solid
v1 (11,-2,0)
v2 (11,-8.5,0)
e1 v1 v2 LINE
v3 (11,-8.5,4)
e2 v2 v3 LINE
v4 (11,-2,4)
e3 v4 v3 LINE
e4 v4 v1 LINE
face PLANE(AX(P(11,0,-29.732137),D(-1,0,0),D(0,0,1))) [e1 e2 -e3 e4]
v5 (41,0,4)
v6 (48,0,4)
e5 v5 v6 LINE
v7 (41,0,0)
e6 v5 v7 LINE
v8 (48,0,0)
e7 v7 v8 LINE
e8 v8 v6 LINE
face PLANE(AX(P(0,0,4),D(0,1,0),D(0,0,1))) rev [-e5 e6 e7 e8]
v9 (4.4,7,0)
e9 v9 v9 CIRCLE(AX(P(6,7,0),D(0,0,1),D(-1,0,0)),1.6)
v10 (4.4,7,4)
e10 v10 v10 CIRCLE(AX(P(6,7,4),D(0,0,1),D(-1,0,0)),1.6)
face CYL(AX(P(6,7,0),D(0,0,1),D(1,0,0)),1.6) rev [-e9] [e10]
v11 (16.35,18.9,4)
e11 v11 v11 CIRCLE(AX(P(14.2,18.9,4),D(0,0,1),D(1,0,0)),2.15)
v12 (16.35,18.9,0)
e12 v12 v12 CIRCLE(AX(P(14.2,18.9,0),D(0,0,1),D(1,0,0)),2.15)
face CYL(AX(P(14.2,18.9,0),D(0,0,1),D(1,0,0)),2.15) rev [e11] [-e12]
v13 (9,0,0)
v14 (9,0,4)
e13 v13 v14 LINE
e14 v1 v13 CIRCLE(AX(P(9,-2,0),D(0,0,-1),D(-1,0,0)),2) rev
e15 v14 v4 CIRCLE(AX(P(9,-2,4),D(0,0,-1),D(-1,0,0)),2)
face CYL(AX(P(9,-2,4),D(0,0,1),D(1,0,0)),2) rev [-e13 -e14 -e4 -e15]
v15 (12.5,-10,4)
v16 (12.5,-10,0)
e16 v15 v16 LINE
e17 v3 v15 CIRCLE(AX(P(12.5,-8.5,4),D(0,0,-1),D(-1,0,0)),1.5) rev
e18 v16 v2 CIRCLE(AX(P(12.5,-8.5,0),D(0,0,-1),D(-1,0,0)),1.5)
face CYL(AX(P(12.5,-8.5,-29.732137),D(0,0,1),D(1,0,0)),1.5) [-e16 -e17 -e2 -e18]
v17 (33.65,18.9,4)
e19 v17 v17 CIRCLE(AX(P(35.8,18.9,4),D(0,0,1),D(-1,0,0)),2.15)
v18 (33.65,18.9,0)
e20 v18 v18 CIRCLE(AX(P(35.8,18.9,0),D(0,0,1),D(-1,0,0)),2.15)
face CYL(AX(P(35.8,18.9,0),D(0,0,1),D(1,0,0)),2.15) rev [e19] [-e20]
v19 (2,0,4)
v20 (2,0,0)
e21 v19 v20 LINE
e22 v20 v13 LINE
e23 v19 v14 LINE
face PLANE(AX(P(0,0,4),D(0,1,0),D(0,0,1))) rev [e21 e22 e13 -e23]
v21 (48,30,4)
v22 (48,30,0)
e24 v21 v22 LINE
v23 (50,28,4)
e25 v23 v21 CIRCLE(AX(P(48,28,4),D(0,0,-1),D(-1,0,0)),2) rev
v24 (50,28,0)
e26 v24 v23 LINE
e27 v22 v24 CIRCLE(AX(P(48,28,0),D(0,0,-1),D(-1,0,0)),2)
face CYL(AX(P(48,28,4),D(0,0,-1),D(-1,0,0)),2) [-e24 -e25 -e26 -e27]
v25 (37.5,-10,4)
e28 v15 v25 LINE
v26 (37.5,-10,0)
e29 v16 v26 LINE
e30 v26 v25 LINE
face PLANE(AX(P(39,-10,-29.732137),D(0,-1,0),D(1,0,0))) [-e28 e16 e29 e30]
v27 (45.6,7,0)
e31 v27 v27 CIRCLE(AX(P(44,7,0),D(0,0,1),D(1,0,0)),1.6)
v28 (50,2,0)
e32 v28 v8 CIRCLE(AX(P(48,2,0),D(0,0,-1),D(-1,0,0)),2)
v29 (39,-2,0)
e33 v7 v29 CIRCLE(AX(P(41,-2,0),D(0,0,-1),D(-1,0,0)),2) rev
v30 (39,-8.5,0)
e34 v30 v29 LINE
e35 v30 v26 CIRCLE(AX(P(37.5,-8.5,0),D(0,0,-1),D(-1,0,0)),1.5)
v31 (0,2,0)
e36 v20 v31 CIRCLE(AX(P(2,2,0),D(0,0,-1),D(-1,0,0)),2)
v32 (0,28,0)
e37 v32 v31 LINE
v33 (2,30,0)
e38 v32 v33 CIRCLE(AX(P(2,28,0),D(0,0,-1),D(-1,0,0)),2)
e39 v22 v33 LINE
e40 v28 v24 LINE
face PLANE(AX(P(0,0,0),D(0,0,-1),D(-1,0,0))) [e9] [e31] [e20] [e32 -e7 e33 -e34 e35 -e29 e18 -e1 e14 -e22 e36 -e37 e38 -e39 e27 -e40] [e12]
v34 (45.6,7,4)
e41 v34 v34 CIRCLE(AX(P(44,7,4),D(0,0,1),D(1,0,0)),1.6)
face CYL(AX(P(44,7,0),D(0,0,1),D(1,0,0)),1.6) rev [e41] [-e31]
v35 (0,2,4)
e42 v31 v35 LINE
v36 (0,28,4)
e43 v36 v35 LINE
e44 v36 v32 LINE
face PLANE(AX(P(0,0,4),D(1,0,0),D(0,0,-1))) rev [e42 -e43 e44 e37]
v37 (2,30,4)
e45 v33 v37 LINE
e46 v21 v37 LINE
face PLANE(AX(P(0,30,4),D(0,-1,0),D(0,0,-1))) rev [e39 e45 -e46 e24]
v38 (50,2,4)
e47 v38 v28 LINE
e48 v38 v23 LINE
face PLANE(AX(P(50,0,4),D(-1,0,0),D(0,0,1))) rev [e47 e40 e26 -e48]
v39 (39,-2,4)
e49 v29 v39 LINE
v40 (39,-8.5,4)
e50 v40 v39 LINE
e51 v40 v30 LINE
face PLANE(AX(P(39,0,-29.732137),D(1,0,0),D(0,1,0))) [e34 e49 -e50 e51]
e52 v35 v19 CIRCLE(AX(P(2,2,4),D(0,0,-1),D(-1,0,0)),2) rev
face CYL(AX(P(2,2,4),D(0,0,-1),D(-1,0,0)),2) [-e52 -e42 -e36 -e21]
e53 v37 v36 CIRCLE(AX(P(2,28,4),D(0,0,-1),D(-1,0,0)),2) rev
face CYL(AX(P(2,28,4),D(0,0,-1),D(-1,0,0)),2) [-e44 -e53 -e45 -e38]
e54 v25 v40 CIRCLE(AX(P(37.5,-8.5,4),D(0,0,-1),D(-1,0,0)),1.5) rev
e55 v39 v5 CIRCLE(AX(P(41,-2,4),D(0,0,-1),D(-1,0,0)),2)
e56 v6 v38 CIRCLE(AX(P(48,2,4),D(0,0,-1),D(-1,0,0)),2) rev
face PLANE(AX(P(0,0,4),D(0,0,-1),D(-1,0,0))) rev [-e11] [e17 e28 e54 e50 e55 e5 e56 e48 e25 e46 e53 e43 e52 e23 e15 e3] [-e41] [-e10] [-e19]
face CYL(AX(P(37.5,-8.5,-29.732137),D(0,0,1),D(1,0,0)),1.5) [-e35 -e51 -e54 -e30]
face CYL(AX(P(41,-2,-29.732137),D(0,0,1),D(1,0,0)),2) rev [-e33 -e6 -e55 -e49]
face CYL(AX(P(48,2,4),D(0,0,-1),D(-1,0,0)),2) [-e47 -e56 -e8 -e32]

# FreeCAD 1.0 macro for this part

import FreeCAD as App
import Part
import Sketcher


def edges_at(feature, points):
    """Names of the edges that pass closest to the given points."""
    edges = feature.Shape.Edges
    near = lambda p: min(range(len(edges)), key=lambda i: edges[i].distToShape(Part.Vertex(*p))[0])
    return sorted({f"Edge{near(p) + 1}" for p in points})


def add_polygon(sketch, points):
    """Adds a closed chain of lines whose ends are joined by coincident constraints."""
    first, n = sketch.GeometryCount, len(points)
    for a, b in zip(points, points[1:] + points[:1]):
        sketch.addGeometry(Part.LineSegment(App.Vector(*a, 0), App.Vector(*b, 0)), False)
    for i in range(n):
        sketch.addConstraint(Sketcher.Constraint("Coincident", first + i, 2, first + (i + 1) % n, 1))

doc = App.newDocument("Part")
body = doc.addObject("PartDesign::Body", "Body")

# Sketch on XY plane
sketch1 = body.newObject("Sketcher::SketchObject", "Sketch")
sketch1.AttachmentSupport = (doc.getObject("XY_Plane"), [""])
sketch1.MapMode = "FlatFace"
add_polygon(sketch1, [(0, 30), (0, 0), (50, 0), (50, 30)])  # lines 0-3
sketch1.addConstraint([
    Sketcher.Constraint("Vertical", 0),
    Sketcher.Constraint("Horizontal", 1),
    Sketcher.Constraint("Vertical", 2),
    Sketcher.Constraint("Horizontal", 3),
    Sketcher.Constraint("Coincident", 0, 2, -1, 1),
    Sketcher.Constraint("DistanceX", 1, 1, 1, 2, 50.0),
    Sketcher.Constraint("DistanceY", 0, 2, 0, 1, 30.0),
])
pad1 = body.newObject("PartDesign::Pad", "Pad")
pad1.Profile = sketch1
pad1.Length = 4

# Sketch on XY plane
sketch2 = body.newObject("Sketcher::SketchObject", "Sketch001")
sketch2.AttachmentSupport = (doc.getObject("XY_Plane"), [""])
sketch2.MapMode = "FlatFace"
sketch2.AttachmentOffset = App.Placement(App.Vector(0, 0, 4), App.Rotation())
sketch2.addGeometry([
    Part.Circle(App.Vector(14.2, 18.9, 0), App.Vector(0, 0, 1), 2.1),
    Part.Circle(App.Vector(35.8, 18.9, 0), App.Vector(0, 0, 1), 2.1),
], False)
sketch2.addConstraint([
    Sketcher.Constraint("Equal", 0, 1),
    Sketcher.Constraint("Horizontal", 0, 3, 1, 3),
    Sketcher.Constraint("Diameter", 0, 4.3),
    Sketcher.Constraint("DistanceX", -1, 1, 0, 3, 14.2),
    Sketcher.Constraint("DistanceY", -1, 1, 0, 3, 18.9),
    Sketcher.Constraint("DistanceX", -1, 1, 1, 3, 35.8),
])
pocket1 = body.newObject("PartDesign::Pocket", "Pocket")
pocket1.Profile = sketch2
pocket1.Length = 4

# Sketch on XY plane
sketch3 = body.newObject("Sketcher::SketchObject", "Sketch002")
sketch3.AttachmentSupport = (doc.getObject("XY_Plane"), [""])
sketch3.MapMode = "FlatFace"
sketch3.AttachmentOffset = App.Placement(App.Vector(0, 0, 4), App.Rotation())
sketch3.addGeometry([
    Part.Circle(App.Vector(44, 7, 0), App.Vector(0, 0, 1), 1.6),
    Part.Circle(App.Vector(6, 7, 0), App.Vector(0, 0, 1), 1.6),
], False)
sketch3.addConstraint([
    Sketcher.Constraint("Equal", 0, 1),
    Sketcher.Constraint("Horizontal", 0, 3, 1, 3),
    Sketcher.Constraint("Diameter", 0, 3.2),
    Sketcher.Constraint("DistanceX", -1, 1, 0, 3, 44.0),
    Sketcher.Constraint("DistanceY", -1, 1, 0, 3, 7.0),
    Sketcher.Constraint("DistanceX", -1, 1, 1, 3, 6.0),
])
pocket2 = body.newObject("PartDesign::Pocket", "Pocket001")
pocket2.Profile = sketch3
pocket2.Type = "ThroughAll"

# Sketch on XY plane
sketch4 = body.newObject("Sketcher::SketchObject", "Sketch003")
sketch4.AttachmentSupport = (doc.getObject("XY_Plane"), [""])
sketch4.MapMode = "FlatFace"
sketch4.AttachmentOffset = App.Placement(App.Vector(0, 0, 4), App.Rotation())
add_polygon(sketch4, [(11, 0), (11, -10), (39, -10), (39, 0)])  # lines 0-3
sketch4.addConstraint([
    Sketcher.Constraint("Vertical", 0),
    Sketcher.Constraint("Horizontal", 1),
    Sketcher.Constraint("Vertical", 2),
    Sketcher.Constraint("Horizontal", 3),
    Sketcher.Constraint("PointOnObject", 2, 2, -1),
    Sketcher.Constraint("DistanceX", 1, 1, 1, 2, 28.0),
    Sketcher.Constraint("DistanceY", 0, 2, 0, 1, 10.0),
    Sketcher.Constraint("DistanceX", -1, 1, 0, 2, 11.0),
])
pad2 = body.newObject("PartDesign::Pad", "Pad001")
pad2.Profile = sketch4
pad2.Length = 4
pad2.Reversed = True
doc.recompute()

fillet = body.newObject("PartDesign::Fillet", "Fillet")
fillet.Base = (pad2, edges_at(pad2, [(11, -10, 2), (39, -10, 2)]))
fillet.Radius = 1.5
doc.recompute()

fillet2 = body.newObject("PartDesign::Fillet", "Fillet001")
fillet2.Base = (fillet, edges_at(fillet, [
    (11, 0, 2),
    (39, 0, 2),
    (0, 30, 2),
    (50, 30, 2),
    (50, 0, 2),
    (0, 0, 2),
]))
fillet2.Radius = 2

doc.recompute()
